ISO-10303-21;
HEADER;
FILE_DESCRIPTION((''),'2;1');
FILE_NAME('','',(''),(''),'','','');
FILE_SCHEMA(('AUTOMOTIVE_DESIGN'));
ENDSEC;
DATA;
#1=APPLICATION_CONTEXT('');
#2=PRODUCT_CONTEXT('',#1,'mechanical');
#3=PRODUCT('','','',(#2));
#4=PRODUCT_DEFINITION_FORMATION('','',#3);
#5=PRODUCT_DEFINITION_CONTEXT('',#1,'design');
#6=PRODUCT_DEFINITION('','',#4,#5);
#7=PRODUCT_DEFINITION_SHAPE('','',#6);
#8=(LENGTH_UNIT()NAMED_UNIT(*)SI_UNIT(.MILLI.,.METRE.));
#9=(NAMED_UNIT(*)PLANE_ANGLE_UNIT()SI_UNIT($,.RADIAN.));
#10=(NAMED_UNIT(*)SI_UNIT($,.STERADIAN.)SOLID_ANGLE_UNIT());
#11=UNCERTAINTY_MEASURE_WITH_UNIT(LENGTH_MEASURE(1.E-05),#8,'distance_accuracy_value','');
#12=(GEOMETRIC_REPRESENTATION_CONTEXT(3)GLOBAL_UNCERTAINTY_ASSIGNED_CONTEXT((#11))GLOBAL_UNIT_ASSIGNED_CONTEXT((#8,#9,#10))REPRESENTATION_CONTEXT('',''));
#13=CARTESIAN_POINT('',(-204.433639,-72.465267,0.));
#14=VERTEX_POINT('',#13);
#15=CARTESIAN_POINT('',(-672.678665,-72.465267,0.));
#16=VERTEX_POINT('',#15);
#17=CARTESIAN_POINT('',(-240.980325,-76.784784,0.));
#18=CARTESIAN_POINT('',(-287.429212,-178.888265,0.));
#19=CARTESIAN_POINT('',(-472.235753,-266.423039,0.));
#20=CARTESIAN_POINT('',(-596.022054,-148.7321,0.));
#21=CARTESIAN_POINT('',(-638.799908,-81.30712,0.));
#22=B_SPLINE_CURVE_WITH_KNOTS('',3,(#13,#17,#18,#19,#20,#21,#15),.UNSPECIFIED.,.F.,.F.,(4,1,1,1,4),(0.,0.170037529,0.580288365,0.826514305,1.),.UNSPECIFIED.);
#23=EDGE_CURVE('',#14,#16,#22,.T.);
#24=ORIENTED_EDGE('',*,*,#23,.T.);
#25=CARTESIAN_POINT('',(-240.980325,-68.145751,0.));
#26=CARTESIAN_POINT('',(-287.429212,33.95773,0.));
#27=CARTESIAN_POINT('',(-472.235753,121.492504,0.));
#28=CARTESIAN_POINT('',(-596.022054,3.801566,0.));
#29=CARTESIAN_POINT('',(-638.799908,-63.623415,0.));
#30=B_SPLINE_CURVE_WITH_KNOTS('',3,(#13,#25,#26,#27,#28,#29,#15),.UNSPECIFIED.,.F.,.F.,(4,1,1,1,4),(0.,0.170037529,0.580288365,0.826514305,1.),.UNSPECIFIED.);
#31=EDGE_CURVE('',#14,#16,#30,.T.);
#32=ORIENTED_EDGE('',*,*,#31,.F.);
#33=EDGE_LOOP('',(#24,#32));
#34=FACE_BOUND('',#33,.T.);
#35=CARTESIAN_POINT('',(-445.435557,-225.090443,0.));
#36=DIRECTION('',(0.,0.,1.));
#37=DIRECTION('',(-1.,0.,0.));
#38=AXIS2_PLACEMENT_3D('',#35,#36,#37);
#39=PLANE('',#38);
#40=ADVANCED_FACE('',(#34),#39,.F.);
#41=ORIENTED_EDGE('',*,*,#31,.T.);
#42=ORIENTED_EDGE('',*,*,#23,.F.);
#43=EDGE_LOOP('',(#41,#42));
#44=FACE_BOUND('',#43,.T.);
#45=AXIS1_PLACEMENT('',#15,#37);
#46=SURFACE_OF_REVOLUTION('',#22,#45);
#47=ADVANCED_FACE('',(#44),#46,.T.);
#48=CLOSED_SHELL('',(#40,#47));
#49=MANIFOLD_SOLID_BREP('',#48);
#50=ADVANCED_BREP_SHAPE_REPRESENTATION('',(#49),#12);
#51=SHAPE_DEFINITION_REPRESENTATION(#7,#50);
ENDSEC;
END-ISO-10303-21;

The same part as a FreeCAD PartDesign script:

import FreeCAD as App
import Part
import Sketcher
from FreeCAD import Vector
Q = App.Units.Quantity

doc = App.newDocument("Part")
body = doc.addObject("PartDesign::Body", "Body")

# Sketch on XY plane
sketch1 = body.newObject("Sketcher::SketchObject", "Sketch")
sketch1.AttachmentSupport = (doc.getObject("XY_Plane"), [""])
sketch1.MapMode = "FlatFace"
sketch1.addGeometry(Part.LineSegment(Vector(-672.678665, -72.465267, 0), Vector(-204.433639, -72.465267, 0)), False)
sketch1.addGeometry(Part.BSplineCurve([Vector(-672.678665, -72.465267, 0), Vector(-638.799908, -63.623415, 0), Vector(-596.022054, 3.801566, 0), Vector(-472.235753, 121.492504, 0), Vector(-287.429212, 33.95773, 0), Vector(-240.980325, -68.145751, 0), Vector(-204.433639, -72.465267, 0)], [4, 1, 1, 1, 4], [0, 0.173485695, 0.419711635, 0.829962471, 1], False, 3, [1, 1, 1, 1, 1, 1, 1], False), False)
sketch1.addGeometry(Part.LineSegment(Vector(-672.678665, -72.465267, 0), Vector(-204.433639, -72.465267, 0)), True)  # axis
sketch1.addConstraint(Sketcher.Constraint("Block", 1))
sketch1.addConstraint(Sketcher.Constraint("Coincident", 0, 1, 1, 1))
sketch1.addConstraint(Sketcher.Constraint("Coincident", 1, 2, 0, 2))
sketch1.addConstraint(Sketcher.Constraint("Horizontal", 2))
sketch1.addConstraint(Sketcher.Constraint("Coincident", 2, 1, 0, 1))
sketch1.addConstraint(Sketcher.Constraint("DistanceX", 2, 1, 2, 2, Q("468.245026 mm")))
revolution = body.newObject("PartDesign::Revolution", "Revolution")
revolution.Profile = sketch1
revolution.ReferenceAxis = (sketch1, ["Axis0"])
revolution.Angle = 180

doc.recompute()
